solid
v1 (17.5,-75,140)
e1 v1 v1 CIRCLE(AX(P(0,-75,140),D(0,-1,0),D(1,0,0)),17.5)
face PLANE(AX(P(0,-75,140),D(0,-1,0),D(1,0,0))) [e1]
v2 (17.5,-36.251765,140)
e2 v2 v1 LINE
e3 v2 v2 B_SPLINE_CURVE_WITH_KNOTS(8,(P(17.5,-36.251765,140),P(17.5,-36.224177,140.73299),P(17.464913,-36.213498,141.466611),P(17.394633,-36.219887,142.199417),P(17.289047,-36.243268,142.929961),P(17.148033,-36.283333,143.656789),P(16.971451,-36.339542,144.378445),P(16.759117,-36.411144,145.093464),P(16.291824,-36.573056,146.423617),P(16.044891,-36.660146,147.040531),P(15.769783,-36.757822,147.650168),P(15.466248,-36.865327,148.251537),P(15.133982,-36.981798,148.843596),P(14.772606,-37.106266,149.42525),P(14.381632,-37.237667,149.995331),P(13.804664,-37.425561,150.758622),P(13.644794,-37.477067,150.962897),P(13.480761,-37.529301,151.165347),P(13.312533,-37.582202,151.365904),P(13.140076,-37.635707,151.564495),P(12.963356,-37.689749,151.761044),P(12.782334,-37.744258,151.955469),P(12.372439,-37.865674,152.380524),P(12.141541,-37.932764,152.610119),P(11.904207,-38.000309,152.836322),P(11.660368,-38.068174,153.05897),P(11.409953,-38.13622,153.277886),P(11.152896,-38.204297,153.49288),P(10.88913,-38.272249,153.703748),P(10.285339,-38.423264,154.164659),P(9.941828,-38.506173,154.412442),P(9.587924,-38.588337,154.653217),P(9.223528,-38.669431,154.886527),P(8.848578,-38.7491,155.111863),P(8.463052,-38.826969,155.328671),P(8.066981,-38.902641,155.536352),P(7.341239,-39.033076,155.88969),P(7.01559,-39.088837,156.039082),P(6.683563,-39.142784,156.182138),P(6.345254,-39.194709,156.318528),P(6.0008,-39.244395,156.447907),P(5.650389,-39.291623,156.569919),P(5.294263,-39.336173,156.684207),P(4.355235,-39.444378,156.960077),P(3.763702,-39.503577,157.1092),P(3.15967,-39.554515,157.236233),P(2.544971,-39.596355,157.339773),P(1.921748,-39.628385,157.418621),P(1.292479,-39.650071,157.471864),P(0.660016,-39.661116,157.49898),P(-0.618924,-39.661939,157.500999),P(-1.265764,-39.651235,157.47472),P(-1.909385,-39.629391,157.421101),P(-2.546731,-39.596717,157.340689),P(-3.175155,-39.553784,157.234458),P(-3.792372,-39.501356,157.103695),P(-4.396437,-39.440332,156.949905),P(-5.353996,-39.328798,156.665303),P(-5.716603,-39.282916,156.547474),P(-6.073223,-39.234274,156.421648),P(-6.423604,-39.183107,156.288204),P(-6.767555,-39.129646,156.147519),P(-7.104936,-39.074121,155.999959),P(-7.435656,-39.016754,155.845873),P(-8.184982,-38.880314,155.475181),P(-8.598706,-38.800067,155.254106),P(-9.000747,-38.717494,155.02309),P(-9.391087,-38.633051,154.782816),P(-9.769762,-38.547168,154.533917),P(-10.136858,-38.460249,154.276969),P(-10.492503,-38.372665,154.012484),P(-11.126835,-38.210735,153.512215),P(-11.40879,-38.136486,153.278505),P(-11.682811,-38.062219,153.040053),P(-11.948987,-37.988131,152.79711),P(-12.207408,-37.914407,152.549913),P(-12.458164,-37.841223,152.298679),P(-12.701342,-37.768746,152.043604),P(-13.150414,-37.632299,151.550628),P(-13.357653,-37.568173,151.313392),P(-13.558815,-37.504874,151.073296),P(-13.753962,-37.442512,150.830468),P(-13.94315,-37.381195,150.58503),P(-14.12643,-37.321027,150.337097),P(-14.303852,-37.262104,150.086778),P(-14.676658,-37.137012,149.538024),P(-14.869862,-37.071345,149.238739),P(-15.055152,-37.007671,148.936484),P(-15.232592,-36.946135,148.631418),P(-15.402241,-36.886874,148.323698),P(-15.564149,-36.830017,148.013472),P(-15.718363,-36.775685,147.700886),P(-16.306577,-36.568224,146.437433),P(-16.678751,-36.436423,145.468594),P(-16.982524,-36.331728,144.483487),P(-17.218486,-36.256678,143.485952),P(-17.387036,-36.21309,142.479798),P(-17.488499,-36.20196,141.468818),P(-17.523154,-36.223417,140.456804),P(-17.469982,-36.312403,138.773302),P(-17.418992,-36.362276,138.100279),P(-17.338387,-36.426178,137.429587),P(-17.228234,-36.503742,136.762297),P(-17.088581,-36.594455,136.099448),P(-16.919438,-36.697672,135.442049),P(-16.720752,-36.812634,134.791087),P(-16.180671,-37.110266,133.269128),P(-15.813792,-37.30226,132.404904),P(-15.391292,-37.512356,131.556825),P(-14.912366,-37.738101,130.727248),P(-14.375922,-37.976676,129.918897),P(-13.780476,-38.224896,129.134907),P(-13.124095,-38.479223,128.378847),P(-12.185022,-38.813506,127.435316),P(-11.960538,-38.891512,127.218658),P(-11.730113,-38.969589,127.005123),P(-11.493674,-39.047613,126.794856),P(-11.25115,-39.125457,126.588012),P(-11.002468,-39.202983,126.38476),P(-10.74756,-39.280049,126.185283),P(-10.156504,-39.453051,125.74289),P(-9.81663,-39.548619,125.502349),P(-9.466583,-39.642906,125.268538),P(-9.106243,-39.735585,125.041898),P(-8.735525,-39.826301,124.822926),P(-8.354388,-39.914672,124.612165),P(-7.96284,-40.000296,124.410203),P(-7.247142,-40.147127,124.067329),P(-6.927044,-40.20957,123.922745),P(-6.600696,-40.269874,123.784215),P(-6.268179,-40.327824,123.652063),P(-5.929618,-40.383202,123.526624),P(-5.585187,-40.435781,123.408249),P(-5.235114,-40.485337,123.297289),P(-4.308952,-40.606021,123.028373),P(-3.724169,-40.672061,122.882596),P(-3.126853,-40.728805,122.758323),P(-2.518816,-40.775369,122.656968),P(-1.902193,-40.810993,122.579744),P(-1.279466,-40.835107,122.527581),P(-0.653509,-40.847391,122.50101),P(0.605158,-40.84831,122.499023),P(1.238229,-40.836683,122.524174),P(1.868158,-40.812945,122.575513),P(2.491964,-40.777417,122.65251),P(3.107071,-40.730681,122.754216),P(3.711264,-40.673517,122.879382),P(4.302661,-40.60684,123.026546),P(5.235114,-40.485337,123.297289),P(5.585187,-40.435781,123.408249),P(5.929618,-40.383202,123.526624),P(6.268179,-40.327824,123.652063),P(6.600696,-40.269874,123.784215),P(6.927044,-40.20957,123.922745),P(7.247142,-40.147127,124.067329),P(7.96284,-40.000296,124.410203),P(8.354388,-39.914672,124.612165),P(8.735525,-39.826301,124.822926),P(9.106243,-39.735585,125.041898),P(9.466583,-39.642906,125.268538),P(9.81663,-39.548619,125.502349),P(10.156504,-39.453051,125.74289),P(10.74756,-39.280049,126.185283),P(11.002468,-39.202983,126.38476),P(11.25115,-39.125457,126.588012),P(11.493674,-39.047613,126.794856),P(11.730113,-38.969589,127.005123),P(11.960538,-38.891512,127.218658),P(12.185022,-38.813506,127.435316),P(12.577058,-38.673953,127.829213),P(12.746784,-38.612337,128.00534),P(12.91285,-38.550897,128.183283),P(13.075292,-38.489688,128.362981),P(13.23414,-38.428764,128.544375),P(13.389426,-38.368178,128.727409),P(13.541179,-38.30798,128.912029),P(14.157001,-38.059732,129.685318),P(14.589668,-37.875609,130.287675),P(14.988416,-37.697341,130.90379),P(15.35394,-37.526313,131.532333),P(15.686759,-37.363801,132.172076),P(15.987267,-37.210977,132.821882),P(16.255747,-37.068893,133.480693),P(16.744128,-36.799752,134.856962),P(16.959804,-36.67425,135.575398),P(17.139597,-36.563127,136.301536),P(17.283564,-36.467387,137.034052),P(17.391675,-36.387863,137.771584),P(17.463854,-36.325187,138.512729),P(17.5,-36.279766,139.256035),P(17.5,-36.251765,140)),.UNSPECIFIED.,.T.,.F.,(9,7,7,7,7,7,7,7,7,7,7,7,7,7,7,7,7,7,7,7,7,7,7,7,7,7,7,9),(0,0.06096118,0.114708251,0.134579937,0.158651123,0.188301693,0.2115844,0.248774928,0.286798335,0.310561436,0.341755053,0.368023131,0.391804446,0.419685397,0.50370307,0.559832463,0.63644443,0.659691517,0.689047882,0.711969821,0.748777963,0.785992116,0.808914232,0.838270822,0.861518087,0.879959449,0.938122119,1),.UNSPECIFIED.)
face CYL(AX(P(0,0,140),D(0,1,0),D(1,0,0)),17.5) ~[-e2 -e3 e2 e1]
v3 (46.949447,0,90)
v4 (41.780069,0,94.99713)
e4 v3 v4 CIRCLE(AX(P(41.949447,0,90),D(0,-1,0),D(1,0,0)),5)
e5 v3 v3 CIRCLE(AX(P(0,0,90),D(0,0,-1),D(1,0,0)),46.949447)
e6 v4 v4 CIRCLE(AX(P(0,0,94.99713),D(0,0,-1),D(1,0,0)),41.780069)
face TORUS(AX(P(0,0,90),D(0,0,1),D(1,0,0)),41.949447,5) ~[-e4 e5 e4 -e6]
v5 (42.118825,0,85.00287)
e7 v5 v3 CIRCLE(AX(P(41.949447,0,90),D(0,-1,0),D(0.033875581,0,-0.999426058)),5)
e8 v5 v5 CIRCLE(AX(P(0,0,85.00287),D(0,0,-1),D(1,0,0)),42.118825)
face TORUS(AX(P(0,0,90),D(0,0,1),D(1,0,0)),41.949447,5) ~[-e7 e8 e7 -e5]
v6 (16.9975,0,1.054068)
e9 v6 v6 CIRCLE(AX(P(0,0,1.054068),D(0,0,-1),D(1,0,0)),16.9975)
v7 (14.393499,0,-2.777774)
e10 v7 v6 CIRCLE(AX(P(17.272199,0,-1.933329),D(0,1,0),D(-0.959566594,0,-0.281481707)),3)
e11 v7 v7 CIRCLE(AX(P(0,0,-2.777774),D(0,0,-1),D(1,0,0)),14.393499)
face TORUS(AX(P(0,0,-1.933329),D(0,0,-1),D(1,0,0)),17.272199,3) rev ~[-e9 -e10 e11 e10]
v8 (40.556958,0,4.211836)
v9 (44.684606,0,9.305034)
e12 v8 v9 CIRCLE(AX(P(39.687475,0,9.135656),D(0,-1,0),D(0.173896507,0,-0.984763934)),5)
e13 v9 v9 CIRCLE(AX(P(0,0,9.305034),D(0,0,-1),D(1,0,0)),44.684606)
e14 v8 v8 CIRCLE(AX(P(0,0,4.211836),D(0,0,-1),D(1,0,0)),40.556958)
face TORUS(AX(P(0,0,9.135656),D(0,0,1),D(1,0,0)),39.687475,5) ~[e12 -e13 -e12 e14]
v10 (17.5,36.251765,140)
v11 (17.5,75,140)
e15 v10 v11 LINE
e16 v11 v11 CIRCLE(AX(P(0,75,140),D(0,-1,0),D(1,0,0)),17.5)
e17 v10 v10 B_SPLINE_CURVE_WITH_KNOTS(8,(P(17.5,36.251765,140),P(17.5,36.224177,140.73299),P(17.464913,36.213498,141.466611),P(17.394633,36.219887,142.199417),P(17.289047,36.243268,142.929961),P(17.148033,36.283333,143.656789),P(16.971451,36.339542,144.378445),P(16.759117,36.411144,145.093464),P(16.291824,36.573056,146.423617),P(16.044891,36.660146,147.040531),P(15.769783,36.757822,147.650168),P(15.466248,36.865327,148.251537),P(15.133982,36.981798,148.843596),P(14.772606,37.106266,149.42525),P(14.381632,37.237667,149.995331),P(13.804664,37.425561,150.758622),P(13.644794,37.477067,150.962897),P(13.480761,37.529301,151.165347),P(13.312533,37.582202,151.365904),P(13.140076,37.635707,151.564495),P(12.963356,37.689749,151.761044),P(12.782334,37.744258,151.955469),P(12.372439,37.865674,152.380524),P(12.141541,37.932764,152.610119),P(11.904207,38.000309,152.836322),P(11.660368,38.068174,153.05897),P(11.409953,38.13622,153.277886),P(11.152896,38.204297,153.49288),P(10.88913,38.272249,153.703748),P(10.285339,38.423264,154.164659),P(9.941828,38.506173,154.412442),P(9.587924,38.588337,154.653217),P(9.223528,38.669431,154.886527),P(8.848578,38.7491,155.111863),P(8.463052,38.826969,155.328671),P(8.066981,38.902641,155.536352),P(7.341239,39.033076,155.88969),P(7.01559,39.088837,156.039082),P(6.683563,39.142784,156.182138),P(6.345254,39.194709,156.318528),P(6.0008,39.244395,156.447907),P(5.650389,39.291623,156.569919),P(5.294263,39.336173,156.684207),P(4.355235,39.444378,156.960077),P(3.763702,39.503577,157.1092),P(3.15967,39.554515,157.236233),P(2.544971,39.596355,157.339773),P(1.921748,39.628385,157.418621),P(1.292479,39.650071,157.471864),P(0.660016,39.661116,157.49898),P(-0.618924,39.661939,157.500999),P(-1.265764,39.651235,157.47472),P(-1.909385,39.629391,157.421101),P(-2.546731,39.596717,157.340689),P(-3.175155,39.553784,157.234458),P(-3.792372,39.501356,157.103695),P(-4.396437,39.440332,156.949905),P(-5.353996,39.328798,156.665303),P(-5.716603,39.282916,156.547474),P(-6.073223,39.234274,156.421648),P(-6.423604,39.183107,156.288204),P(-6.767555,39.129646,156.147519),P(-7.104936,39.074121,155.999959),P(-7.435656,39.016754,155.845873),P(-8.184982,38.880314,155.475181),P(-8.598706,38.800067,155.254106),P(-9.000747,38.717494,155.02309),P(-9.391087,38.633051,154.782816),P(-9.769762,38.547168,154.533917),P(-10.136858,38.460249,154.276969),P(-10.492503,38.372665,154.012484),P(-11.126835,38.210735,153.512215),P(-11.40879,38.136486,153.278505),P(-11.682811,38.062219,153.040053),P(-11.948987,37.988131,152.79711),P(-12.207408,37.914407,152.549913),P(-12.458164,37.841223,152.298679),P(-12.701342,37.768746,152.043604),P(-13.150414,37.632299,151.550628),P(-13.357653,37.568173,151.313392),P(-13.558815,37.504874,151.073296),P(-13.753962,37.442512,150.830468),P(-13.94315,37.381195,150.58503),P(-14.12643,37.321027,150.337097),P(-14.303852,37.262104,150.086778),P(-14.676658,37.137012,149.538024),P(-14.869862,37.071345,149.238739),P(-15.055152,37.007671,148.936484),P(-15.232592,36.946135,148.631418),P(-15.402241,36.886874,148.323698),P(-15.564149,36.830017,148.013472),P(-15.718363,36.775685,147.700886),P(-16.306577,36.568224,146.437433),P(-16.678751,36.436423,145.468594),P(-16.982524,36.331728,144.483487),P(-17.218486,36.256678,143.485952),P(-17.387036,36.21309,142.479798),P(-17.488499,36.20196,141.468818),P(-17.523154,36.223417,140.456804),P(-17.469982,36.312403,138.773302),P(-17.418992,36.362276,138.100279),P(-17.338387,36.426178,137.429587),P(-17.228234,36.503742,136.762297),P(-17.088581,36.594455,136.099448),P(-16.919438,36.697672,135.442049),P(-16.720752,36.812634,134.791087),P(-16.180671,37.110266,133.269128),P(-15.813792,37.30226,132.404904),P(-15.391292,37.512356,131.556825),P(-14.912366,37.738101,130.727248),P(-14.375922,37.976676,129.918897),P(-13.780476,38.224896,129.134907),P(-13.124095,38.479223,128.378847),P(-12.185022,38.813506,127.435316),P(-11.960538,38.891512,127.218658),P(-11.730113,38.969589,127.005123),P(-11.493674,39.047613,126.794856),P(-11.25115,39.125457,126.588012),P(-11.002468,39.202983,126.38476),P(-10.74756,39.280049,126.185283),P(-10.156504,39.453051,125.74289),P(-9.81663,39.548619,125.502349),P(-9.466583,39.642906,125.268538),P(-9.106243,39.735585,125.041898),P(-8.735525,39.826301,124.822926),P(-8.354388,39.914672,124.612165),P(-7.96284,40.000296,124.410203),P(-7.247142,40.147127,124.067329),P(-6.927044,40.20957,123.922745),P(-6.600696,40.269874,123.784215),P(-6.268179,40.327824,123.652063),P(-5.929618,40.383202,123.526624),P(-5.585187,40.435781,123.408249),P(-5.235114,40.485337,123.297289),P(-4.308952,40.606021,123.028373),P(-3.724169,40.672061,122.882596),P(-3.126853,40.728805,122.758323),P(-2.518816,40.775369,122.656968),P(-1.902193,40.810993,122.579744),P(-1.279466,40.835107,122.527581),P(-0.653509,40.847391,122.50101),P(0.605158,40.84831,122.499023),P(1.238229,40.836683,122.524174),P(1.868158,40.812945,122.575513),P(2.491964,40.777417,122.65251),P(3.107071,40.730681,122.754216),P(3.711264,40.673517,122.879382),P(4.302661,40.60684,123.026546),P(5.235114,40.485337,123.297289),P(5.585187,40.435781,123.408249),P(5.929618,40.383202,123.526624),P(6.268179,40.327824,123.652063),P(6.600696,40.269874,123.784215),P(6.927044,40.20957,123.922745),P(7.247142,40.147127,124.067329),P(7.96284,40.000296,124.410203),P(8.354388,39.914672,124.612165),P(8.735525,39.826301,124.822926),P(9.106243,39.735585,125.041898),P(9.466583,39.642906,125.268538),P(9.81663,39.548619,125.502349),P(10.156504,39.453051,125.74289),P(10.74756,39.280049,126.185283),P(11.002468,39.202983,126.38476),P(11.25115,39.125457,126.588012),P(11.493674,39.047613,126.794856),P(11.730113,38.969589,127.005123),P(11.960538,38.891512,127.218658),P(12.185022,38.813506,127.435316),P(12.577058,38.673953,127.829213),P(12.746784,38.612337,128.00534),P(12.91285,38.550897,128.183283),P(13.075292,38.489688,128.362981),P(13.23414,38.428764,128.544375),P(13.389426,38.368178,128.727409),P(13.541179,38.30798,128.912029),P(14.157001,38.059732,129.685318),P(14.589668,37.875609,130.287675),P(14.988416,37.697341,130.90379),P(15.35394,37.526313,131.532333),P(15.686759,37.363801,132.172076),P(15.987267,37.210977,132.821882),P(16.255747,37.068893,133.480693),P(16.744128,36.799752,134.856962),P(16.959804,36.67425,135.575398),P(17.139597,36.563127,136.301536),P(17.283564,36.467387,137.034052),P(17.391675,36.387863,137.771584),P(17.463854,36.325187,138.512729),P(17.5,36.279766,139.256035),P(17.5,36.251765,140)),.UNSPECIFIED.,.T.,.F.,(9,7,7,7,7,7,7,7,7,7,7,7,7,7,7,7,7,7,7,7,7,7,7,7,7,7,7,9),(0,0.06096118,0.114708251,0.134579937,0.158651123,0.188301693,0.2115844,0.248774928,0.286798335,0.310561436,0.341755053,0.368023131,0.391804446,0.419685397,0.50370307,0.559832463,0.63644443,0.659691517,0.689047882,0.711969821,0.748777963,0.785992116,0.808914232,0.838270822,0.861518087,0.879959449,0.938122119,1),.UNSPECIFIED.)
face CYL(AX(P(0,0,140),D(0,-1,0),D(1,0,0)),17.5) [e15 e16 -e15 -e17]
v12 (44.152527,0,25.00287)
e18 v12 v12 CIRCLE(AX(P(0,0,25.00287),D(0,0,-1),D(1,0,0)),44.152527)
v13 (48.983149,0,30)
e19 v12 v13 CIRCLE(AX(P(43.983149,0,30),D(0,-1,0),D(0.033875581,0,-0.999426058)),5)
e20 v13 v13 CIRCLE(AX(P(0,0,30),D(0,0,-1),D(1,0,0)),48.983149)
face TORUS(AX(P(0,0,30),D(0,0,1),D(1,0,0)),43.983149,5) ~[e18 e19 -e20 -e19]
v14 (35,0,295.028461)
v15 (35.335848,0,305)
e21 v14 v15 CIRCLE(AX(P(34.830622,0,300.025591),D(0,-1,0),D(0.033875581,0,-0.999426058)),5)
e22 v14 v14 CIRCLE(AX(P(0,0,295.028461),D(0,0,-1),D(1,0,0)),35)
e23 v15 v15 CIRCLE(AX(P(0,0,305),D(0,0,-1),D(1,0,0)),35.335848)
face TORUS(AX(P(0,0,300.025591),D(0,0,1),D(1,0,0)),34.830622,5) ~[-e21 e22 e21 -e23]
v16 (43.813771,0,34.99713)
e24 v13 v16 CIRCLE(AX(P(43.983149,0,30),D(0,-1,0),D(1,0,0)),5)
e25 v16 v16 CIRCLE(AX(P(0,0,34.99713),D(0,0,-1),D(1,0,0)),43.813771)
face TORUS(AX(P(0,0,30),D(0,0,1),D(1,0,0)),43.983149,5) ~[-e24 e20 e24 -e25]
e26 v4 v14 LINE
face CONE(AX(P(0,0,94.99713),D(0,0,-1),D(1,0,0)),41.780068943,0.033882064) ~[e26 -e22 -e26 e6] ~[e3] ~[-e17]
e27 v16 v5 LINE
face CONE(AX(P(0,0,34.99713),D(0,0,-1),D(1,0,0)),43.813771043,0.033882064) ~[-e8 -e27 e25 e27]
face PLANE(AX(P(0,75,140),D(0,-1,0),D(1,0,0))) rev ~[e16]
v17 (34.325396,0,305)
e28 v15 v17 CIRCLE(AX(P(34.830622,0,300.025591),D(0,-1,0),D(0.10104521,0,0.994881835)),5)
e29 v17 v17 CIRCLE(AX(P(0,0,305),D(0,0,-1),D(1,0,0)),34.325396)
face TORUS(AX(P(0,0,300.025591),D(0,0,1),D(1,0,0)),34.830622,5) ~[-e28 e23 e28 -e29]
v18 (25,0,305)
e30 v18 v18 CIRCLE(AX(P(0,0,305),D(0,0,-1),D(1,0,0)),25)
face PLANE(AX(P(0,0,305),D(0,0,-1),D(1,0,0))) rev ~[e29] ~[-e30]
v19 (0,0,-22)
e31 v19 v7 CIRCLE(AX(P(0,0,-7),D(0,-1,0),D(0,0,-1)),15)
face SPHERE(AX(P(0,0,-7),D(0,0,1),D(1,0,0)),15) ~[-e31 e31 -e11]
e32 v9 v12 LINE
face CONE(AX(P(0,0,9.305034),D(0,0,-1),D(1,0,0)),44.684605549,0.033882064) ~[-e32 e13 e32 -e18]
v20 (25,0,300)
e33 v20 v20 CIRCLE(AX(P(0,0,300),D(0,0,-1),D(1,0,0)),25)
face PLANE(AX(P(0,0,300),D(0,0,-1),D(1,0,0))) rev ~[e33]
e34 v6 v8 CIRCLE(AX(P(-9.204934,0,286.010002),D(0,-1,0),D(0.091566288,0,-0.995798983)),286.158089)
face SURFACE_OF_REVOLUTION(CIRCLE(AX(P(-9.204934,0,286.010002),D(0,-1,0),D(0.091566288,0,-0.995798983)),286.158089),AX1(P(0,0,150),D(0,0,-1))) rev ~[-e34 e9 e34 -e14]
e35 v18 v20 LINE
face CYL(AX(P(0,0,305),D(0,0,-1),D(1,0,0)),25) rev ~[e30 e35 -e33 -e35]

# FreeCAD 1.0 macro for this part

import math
import FreeCAD as App
import Part
import Sketcher
from FreeCAD import Vector

doc = App.newDocument("Part")
body = doc.addObject("PartDesign::Body", "Body")

sketch1 = body.newObject("Sketcher::SketchObject", "Sketch")
sketch1.AttachmentSupport = (doc.getObject("XZ_Plane"), [""])
sketch1.MapMode = "FlatFace"
sketch1.addGeometry([
    Part.LineSegment(Vector(25, 300, 0), Vector(0, 300, 0)),
    Part.LineSegment(Vector(0, 300, 0), Vector(0, -22, 0)),
    Part.ArcOfCircle(Part.Circle(Vector(0, -7, 0), Vector(0, 0, 1), 15), math.radians(-90), math.radians(16.348658)),
    Part.ArcOfCircle(Part.Circle(Vector(17.272199, -1.933329, 0), Vector(0, 0, 1), 3), math.radians(95.253721), math.radians(196.348658)),
    Part.ArcOfCircle(Part.Circle(Vector(-9.204934, 286.010002, 0), Vector(0, 0, 1), 286.158089), math.radians(-84.746279), math.radians(-79.985552)),
    Part.ArcOfCircle(Part.Circle(Vector(39.687475, 9.135656, 0), Vector(0, 0, 1), 5), math.radians(-79.985552), math.radians(1.941299)),
    Part.LineSegment(Vector(44.684606, 9.305034, 0), Vector(44.152527, 25.00287, 0)),
    Part.ArcOfCircle(Part.Circle(Vector(43.983149, 30, 0), Vector(0, 0, 1), 5), math.radians(-88.058701), math.radians(0)),
    Part.ArcOfCircle(Part.Circle(Vector(43.983149, 30, 0), Vector(0, 0, 1), 5), math.radians(0), math.radians(91.941299)),
    Part.LineSegment(Vector(43.813771, 34.99713, 0), Vector(42.118825, 85.00287, 0)),
    Part.ArcOfCircle(Part.Circle(Vector(41.949447, 90, 0), Vector(0, 0, 1), 5), math.radians(-88.058701), math.radians(0)),
    Part.ArcOfCircle(Part.Circle(Vector(41.949447, 90, 0), Vector(0, 0, 1), 5), math.radians(0), math.radians(91.941299)),
    Part.LineSegment(Vector(41.780069, 94.99713, 0), Vector(35, 295.028461, 0)),
    Part.ArcOfCircle(Part.Circle(Vector(34.830622, 300.025591, 0), Vector(0, 0, 1), 5), math.radians(-88.058701), math.radians(84.200639)),
    Part.ArcOfCircle(Part.Circle(Vector(34.830622, 300.025591, 0), Vector(0, 0, 1), 5), math.radians(84.200639), math.radians(95.799361)),
    Part.LineSegment(Vector(34.325396, 305, 0), Vector(25, 305, 0)),
    Part.LineSegment(Vector(25, 305, 0), Vector(25, 300, 0)),
], False)
sketch1.addConstraint([
    Sketcher.Constraint("Coincident", 0, 2, 1, 1),
    Sketcher.Constraint("Coincident", 1, 2, 2, 1),
    Sketcher.Constraint("Coincident", 2, 2, 3, 2),
    Sketcher.Constraint("Coincident", 3, 1, 4, 1),
    Sketcher.Constraint("Coincident", 4, 2, 5, 1),
    Sketcher.Constraint("Coincident", 5, 2, 6, 1),
    Sketcher.Constraint("Coincident", 6, 2, 7, 1),
    Sketcher.Constraint("Coincident", 7, 2, 8, 1),
    Sketcher.Constraint("Coincident", 8, 2, 9, 1),
    Sketcher.Constraint("Coincident", 9, 2, 10, 1),
    Sketcher.Constraint("Coincident", 10, 2, 11, 1),
    Sketcher.Constraint("Coincident", 11, 2, 12, 1),
    Sketcher.Constraint("Coincident", 12, 2, 13, 1),
    Sketcher.Constraint("Coincident", 13, 2, 14, 1),
    Sketcher.Constraint("Coincident", 14, 2, 15, 1),
    Sketcher.Constraint("Coincident", 15, 2, 16, 1),
    Sketcher.Constraint("Coincident", 16, 2, 0, 1),
    Sketcher.Constraint("Horizontal", 0),
    Sketcher.Constraint("Vertical", 1),
    Sketcher.Constraint("Horizontal", 15),
    Sketcher.Constraint("Vertical", 16),
    Sketcher.Constraint("Coincident", 8, 3, 7, 3),
    Sketcher.Constraint("Coincident", 11, 3, 10, 3),
    Sketcher.Constraint("Coincident", 14, 3, 13, 3),
    Sketcher.Constraint("PointOnObject", 2, 3, -2),
    Sketcher.Constraint("PointOnObject", 0, 2, -2),
    Sketcher.Constraint("Radius", 2, 15.0),
    Sketcher.Constraint("Radius", 3, 3.0),
    Sketcher.Constraint("Radius", 5, 5.0),
    Sketcher.Constraint("Radius", 7, 5.0),
    Sketcher.Constraint("Radius", 10, 5.0),
    Sketcher.Constraint("Radius", 13, 5.0),
    Sketcher.Constraint("DistanceX", 0, 2, 0, 1, 25.0),
    Sketcher.Constraint("DistanceY", 1, 2, 1, 1, 322.0),
    Sketcher.Constraint("DistanceY", 16, 2, 16, 1, 5.0),
    Sketcher.Constraint("DistanceY", 2, 3, -1, 1, 7.0),
    Sketcher.Constraint("DistanceY", -1, 1, 7, 3, 30.0),
    Sketcher.Constraint("DistanceY", -1, 1, 10, 3, 90.0),
    Sketcher.Constraint("DistanceY", -1, 1, 7, 2, 30.0),
    Sketcher.Constraint("DistanceY", -1, 1, 10, 2, 90.0),
    Sketcher.Constraint("DistanceX", -1, 1, 12, 2, 35.0),
    Sketcher.Constraint("DistanceY", -1, 1, 13, 2, 305.0),
    Sketcher.Constraint("DistanceY", 8, 2, 11, 2, 60.0),
    Sketcher.Constraint("DistanceY", -1, 1, 4, 3, 286.010002),
    Sketcher.Constraint("Radius", 4, 286.158089),
    Sketcher.Constraint("DistanceX", 2, 2, 3, 1, 2.604001),
    Sketcher.Constraint("DistanceX", -1, 1, 3, 3, 17.272199),
    Sketcher.Constraint("DistanceX", -1, 1, 2, 2, 14.393499),
    Sketcher.Constraint("Distance", 6, 15.706851),
    Sketcher.Constraint("DistanceX", 15, 2, 15, 1, 9.325396),
    Sketcher.Constraint("DistanceX", -1, 1, 7, 3, 43.983149),
    Sketcher.Constraint("DistanceY", -1, 1, 13, 3, 300.025591),
    Sketcher.Constraint("DistanceY", -1, 1, 6, 2, 25.00287),
    Sketcher.Constraint("DistanceX", -1, 1, 8, 2, 43.813771),
    Sketcher.Constraint("DistanceY", -1, 1, 9, 2, 85.00287),
    Sketcher.Constraint("DistanceX", -1, 1, 11, 2, 41.780069),
    Sketcher.Constraint("DistanceX", 4, 3, 5, 3, 48.892409),
    Sketcher.Constraint("DistanceY", 4, 2, 5, 3, 4.92382),
])
revolution = body.newObject("PartDesign::Revolution", "Revolution")
revolution.Profile = sketch1
revolution.ReferenceAxis = (sketch1, ["V_Axis"])
revolution.Angle = 360

sketch2 = body.newObject("Sketcher::SketchObject", "Sketch001")
sketch2.AttachmentSupport = (doc.getObject("XZ_Plane"), [""])
sketch2.MapMode = "FlatFace"
sketch2.addGeometry(Part.Circle(Vector(0, 140, 0), Vector(0, 0, 1), 17.5), False)
sketch2.addConstraint([
    Sketcher.Constraint("PointOnObject", 0, 3, -2),
    Sketcher.Constraint("Diameter", 0, 35.0),
    Sketcher.Constraint("DistanceY", -1, 1, 0, 3, 140.0),
])
pad1 = body.newObject("PartDesign::Pad", "Pad")
pad1.Profile = sketch2
pad1.Type = "TwoLengths"
pad1.Length = 75
pad1.Length2 = 75

doc.recompute()
